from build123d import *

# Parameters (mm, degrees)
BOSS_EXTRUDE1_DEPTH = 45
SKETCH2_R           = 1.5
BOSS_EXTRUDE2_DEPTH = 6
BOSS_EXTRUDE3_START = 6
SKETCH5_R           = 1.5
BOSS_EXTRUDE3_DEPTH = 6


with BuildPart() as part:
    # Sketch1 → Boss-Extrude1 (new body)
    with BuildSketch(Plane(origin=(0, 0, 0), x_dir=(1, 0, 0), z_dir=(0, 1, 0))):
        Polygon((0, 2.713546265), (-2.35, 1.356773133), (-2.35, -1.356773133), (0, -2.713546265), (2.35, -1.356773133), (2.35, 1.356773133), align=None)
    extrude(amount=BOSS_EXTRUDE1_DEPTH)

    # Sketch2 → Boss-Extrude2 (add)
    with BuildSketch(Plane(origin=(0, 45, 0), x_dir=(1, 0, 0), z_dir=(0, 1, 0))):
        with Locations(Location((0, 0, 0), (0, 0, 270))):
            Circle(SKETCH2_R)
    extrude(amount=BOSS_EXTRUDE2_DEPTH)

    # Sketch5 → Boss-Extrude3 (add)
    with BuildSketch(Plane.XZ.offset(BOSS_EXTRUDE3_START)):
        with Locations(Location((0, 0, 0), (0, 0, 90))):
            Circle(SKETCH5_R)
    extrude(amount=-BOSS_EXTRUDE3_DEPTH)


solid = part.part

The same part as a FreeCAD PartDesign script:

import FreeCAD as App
import Part
import Sketcher
Q = App.Units.Quantity

doc = App.newDocument("Part")
body = doc.addObject("PartDesign::Body", "Body")

# Sketch on XZ plane
sketch1 = body.newObject("Sketcher::SketchObject", "Sketch")
sketch1.AttachmentSupport = (doc.getObject("XZ_Plane"), [""])
sketch1.MapMode = "FlatFace"
sketch1.addGeometry([
    Part.LineSegment(App.Vector(0, -2.7, 0), App.Vector(-2.4, -1.4, 0)),  # 0
    Part.LineSegment(App.Vector(-2.4, -1.4, 0), App.Vector(-2.4, 1.4, 0)),  # 1
    Part.LineSegment(App.Vector(-2.4, 1.4, 0), App.Vector(0, 2.7, 0)),  # 2
    Part.LineSegment(App.Vector(0, 2.7, 0), App.Vector(2.4, 1.4, 0)),  # 3
    Part.LineSegment(App.Vector(2.4, 1.4, 0), App.Vector(2.4, -1.4, 0)),  # 4
    Part.LineSegment(App.Vector(2.4, -1.4, 0), App.Vector(0, -2.7, 0)),  # 5
], False)
sketch1.addConstraint([
    Sketcher.Constraint("Coincident", 0, 2, 1, 1),
    Sketcher.Constraint("Coincident", 1, 2, 2, 1),
    Sketcher.Constraint("Coincident", 2, 2, 3, 1),
    Sketcher.Constraint("Coincident", 3, 2, 4, 1),
    Sketcher.Constraint("Coincident", 4, 2, 5, 1),
    Sketcher.Constraint("Coincident", 5, 2, 0, 1),
    Sketcher.Constraint("Vertical", 1),
    Sketcher.Constraint("Vertical", 4),
    Sketcher.Constraint("Symmetric", 0, 2, 3, 2, -1, 1),
    Sketcher.Constraint("Symmetric", 2, 2, 5, 2, -1, 1),
    Sketcher.Constraint("PointOnObject", 2, 2, -2),
    Sketcher.Constraint("Parallel", 2, 5),
    Sketcher.Constraint("Horizontal", 1, 2, 3, 2),
    Sketcher.Constraint("Angle", 0, Q("150 deg")),
    Sketcher.Constraint("DistanceX", 1, 2, 3, 2, Q("4.7 mm")),
    Sketcher.Constraint("DistanceY", 1, 1, 1, 2, Q("2.713546 mm")),
])
pad1 = body.newObject("PartDesign::Pad", "Pad")
pad1.Profile = sketch1
pad1.Length = 45
pad1.Reversed = True

# Sketch on XZ plane
sketch2 = body.newObject("Sketcher::SketchObject", "Sketch001")
sketch2.AttachmentSupport = (doc.getObject("XZ_Plane"), [""])
sketch2.MapMode = "FlatFace"
sketch2.AttachmentOffset = App.Placement(App.Vector(0, 0, -45), App.Rotation())
sketch2.addGeometry(Part.Circle(App.Vector(0, 0, 0), App.Vector(0, 0, 1), 1.5), False)
sketch2.addConstraint([
    Sketcher.Constraint("Coincident", 0, 3, -1, 1),
    Sketcher.Constraint("Diameter", 0, Q("3 mm")),
])
pad2 = body.newObject("PartDesign::Pad", "Pad001")
pad2.Profile = sketch2
pad2.Length = 6
pad2.Reversed = True

# Sketch on XZ plane
sketch3 = body.newObject("Sketcher::SketchObject", "Sketch002")
sketch3.AttachmentSupport = (doc.getObject("XZ_Plane"), [""])
sketch3.MapMode = "FlatFace"
sketch3.AttachmentOffset = App.Placement(App.Vector(0, 0, 6), App.Rotation())
sketch3.addGeometry(Part.Circle(App.Vector(0, 0, 0), App.Vector(0, 0, 1), 1.5), False)
sketch3.addConstraint([
    Sketcher.Constraint("Coincident", 0, 3, -1, 1),
    Sketcher.Constraint("Diameter", 0, Q("3 mm")),
])
pad3 = body.newObject("PartDesign::Pad", "Pad002")
pad3.Profile = sketch3
pad3.Length = 6
pad3.Reversed = True

doc.recompute()
